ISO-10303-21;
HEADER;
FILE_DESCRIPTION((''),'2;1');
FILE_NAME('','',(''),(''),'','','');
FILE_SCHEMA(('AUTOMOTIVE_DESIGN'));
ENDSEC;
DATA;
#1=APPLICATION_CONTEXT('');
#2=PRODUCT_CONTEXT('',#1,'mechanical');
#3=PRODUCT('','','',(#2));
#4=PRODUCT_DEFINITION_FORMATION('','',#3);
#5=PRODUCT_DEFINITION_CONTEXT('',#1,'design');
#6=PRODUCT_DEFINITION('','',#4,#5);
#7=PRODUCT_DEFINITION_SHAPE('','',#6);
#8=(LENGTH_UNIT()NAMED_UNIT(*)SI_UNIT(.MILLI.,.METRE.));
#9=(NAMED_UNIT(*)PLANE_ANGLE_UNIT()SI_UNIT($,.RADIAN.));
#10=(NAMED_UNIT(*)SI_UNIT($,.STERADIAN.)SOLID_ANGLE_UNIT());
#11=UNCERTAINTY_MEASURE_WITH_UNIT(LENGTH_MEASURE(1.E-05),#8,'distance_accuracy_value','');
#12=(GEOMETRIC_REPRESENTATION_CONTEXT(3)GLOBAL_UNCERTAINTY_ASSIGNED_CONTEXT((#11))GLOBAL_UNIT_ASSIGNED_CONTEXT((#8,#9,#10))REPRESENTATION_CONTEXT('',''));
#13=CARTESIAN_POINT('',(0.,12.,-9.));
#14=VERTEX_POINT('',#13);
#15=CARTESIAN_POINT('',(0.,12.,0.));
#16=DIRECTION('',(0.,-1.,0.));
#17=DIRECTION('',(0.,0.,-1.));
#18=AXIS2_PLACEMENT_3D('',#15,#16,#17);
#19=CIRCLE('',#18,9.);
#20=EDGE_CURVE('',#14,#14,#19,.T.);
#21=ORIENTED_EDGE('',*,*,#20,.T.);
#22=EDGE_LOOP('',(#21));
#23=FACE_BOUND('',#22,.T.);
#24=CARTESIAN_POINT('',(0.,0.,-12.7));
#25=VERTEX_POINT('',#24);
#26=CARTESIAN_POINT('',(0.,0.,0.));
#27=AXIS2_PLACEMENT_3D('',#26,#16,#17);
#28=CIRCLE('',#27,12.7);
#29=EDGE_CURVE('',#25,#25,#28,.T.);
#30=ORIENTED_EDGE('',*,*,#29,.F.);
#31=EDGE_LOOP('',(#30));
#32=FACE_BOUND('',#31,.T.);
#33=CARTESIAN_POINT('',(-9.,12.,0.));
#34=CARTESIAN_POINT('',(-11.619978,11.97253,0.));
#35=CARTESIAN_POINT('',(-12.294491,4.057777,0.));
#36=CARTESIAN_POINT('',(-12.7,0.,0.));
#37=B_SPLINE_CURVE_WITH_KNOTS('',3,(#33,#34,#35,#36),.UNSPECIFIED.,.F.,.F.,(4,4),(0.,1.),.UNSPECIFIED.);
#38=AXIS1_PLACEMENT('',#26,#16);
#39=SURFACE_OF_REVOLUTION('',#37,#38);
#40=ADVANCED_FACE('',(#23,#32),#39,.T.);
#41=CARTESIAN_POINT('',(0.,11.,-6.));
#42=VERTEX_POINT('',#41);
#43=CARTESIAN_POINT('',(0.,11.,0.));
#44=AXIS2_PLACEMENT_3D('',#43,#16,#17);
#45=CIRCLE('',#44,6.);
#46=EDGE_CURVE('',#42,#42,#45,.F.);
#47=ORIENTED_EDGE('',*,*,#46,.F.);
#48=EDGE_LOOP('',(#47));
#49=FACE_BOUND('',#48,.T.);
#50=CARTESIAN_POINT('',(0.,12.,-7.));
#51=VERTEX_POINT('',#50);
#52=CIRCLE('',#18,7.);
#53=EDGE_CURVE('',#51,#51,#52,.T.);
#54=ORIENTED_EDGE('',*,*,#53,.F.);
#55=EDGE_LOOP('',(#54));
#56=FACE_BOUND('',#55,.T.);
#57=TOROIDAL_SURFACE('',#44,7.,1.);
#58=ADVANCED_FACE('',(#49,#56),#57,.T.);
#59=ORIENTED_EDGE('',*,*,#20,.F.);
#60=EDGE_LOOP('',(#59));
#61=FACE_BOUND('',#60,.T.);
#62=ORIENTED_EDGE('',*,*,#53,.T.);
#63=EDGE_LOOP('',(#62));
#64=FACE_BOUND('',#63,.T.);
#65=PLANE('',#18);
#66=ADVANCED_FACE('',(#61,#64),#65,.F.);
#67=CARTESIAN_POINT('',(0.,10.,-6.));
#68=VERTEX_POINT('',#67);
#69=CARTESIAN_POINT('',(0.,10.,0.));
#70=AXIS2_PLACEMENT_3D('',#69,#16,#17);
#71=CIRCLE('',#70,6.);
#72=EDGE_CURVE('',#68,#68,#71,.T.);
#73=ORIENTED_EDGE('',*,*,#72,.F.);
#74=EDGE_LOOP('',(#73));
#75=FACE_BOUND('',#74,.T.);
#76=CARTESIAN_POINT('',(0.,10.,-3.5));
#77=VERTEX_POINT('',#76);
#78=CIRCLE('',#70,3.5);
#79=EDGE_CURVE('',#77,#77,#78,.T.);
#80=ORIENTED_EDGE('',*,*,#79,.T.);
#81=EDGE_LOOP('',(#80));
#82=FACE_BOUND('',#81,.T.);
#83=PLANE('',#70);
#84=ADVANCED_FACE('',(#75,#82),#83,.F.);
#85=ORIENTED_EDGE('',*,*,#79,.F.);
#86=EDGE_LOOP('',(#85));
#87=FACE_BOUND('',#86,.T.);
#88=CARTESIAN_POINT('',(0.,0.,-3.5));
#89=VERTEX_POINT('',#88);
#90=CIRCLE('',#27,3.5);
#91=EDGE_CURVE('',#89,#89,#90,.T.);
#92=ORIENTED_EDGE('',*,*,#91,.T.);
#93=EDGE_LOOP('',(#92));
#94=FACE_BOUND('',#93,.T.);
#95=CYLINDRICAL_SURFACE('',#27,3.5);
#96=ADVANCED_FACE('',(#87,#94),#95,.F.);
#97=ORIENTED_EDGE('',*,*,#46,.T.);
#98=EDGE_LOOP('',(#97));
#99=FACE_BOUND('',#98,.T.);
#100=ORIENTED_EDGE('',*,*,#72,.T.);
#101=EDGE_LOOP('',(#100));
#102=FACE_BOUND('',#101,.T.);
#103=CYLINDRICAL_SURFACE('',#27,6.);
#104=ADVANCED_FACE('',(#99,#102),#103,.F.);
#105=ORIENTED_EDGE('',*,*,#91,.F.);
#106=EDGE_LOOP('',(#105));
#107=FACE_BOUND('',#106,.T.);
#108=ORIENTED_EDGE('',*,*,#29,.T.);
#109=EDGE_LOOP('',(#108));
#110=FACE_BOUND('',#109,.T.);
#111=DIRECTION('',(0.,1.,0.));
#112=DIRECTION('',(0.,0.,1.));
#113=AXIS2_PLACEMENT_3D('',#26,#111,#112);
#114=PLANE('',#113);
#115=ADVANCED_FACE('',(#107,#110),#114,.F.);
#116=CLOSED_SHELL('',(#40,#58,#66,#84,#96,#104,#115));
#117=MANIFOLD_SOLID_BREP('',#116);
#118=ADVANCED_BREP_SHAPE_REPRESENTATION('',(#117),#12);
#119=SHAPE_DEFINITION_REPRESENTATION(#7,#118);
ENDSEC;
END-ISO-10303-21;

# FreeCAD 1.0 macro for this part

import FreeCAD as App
import Part
import Sketcher


def edges_at(feature, points):
    """Names of the edges that pass closest to the given points."""
    edges = feature.Shape.Edges
    near = lambda p: min(range(len(edges)), key=lambda i: edges[i].distToShape(Part.Vertex(*p))[0])
    return sorted({f"Edge{near(p) + 1}" for p in points})

doc = App.newDocument("Part")
params = doc.addObject("Spreadsheet::Sheet", "Params")
for row, (alias, value) in enumerate([
    ("sketch1_width", "3 mm"),
    ("sketch1_height", "10 mm"),
    ("sketch1_width2", "9.2 mm"),
    ("revolution_angle", "360 deg"),
    ("fillet_radius", "1 mm"),
], start=1):
    params.set(f"A{row}", alias)
    params.set(f"B{row}", "=" + value)
    params.setAlias(f"B{row}", alias)

body = doc.addObject("PartDesign::Body", "Body")

# Sketch on XY plane
sketch1 = body.newObject("Sketcher::SketchObject", "Sketch")
sketch1.AttachmentSupport = (doc.getObject("XY_Plane"), [""])
sketch1.MapMode = "FlatFace"
sketch1.addGeometry([
    Part.LineSegment(App.Vector(-12.7, 0, 0), App.Vector(-3.5, 0, 0)),  # 0
    Part.LineSegment(App.Vector(-3.5, 0, 0), App.Vector(-3.5, 10, 0)),  # 1
    Part.LineSegment(App.Vector(-3.5, 10, 0), App.Vector(-6, 10, 0)),  # 2
    Part.LineSegment(App.Vector(-6, 10, 0), App.Vector(-6, 12, 0)),  # 3
    Part.LineSegment(App.Vector(-6, 12, 0), App.Vector(-9, 12, 0)),  # 4
    Part.BSplineCurve([App.Vector(-9, 12, 0), App.Vector(-11.619978, 11.97253, 0), App.Vector(-12.294491, 4.057777, 0), App.Vector(-12.7, 0, 0)], [4, 4], [0, 1], False, 3, [1, 1, 1, 1], False),  # 5
], False)
sketch1.addConstraint([
    Sketcher.Constraint("Block", 5),
    Sketcher.Constraint("Coincident", 0, 2, 1, 1),
    Sketcher.Constraint("Coincident", 1, 2, 2, 1),
    Sketcher.Constraint("Coincident", 2, 2, 3, 1),
    Sketcher.Constraint("Coincident", 3, 2, 4, 1),
    Sketcher.Constraint("Coincident", 4, 2, 5, 1),
    Sketcher.Constraint("Coincident", 5, 2, 0, 1),
    Sketcher.Constraint("Horizontal", 0),
    Sketcher.Constraint("Vertical", 1),
    Sketcher.Constraint("Horizontal", 2),
    Sketcher.Constraint("Vertical", 3),
    Sketcher.Constraint("Horizontal", 4),
    Sketcher.Constraint("DistanceX", 4, 2, 4, 1, 3.0),
    Sketcher.Constraint("DistanceY", 1, 1, 1, 2, 10.0),
    Sketcher.Constraint("DistanceX", 0, 1, 0, 2, 9.2),
])
sketch1.setExpression("Constraints[12]", "Params.sketch1_width")
sketch1.setExpression("Constraints[13]", "Params.sketch1_height")
sketch1.setExpression("Constraints[14]", "Params.sketch1_width2")
revolution = body.newObject("PartDesign::Revolution", "Revolution")
revolution.Profile = sketch1
revolution.ReferenceAxis = (sketch1, ["V_Axis"])
revolution.setExpression("Angle", "Params.revolution_angle")
doc.recompute()

fillet = body.newObject("PartDesign::Fillet", "Fillet")
fillet.Base = (revolution, edges_at(revolution, [(0, 12, 6)]))
fillet.setExpression("Radius", "Params.fillet_radius")

doc.recompute()
